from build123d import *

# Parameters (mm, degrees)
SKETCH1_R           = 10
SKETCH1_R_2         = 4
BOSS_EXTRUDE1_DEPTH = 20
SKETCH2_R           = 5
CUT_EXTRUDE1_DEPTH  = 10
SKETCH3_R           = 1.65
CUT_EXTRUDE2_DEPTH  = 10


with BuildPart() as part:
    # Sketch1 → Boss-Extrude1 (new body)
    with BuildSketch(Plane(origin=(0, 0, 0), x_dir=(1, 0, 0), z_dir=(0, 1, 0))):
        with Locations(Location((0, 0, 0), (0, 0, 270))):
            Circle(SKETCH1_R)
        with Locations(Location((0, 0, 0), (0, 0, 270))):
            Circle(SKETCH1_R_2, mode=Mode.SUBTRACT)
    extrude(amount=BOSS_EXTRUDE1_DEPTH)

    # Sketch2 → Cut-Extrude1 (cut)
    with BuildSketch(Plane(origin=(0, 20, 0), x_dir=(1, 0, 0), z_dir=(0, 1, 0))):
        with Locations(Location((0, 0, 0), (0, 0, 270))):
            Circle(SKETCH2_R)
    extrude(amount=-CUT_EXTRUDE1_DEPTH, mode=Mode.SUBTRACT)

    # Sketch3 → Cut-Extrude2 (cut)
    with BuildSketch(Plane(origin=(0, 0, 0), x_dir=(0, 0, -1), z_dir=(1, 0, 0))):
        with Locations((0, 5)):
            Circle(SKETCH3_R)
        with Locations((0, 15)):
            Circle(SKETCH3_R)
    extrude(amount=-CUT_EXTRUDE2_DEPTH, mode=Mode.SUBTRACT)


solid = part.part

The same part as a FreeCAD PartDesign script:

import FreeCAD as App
import Part
import Sketcher

doc = App.newDocument("Part")
body = doc.addObject("PartDesign::Body", "Body")

sketch1 = doc.addObject("Sketcher::SketchObject", "Sketch")
body.addObject(sketch1)
sketch1.AttachmentSupport = (doc.XZ_Plane, [""])
sketch1.MapMode = "FlatFace"
sketch1.addGeometry([
    Part.Circle(App.Vector(0, 0, 0), App.Vector(0, 0, 1), 10),
    Part.Circle(App.Vector(0, 0, 0), App.Vector(0, 0, 1), 4),
], False)
sketch1.addConstraint([
    Sketcher.Constraint("Coincident", 0, 3, -1, 1),
    Sketcher.Constraint("Coincident", 1, 3, -1, 1),
    Sketcher.Constraint("Diameter", 0, 20.0),
    Sketcher.Constraint("Diameter", 1, 8.0),
])
pad1 = doc.addObject("PartDesign::Pad", "Pad")
body.addObject(pad1)
pad1.Profile = sketch1
pad1.Length = 20
pad1.Reversed = True

sketch2 = doc.addObject("Sketcher::SketchObject", "Sketch001")
body.addObject(sketch2)
sketch2.AttachmentSupport = (doc.XZ_Plane, [""])
sketch2.MapMode = "FlatFace"
sketch2.AttachmentOffset = App.Placement(App.Vector(0, 0, -20), App.Rotation())
sketch2.addGeometry(Part.Circle(App.Vector(0, 0, 0), App.Vector(0, 0, 1), 5), False)
sketch2.addConstraint([
    Sketcher.Constraint("Coincident", 0, 3, -1, 1),
    Sketcher.Constraint("Diameter", 0, 10.0),
])
pocket1 = doc.addObject("PartDesign::Pocket", "Pocket")
body.addObject(pocket1)
pocket1.Profile = sketch2
pocket1.Length = 10
pocket1.Reversed = True

sketch3 = doc.addObject("Sketcher::SketchObject", "Sketch002")
body.addObject(sketch3)
sketch3.AttachmentSupport = (doc.YZ_Plane, [""])
sketch3.MapMode = "FlatFace"
sketch3.addGeometry([
    Part.Circle(App.Vector(5, 0, 0), App.Vector(0, 0, 1), 1.6),
    Part.Circle(App.Vector(15, 0, 0), App.Vector(0, 0, 1), 1.6),
], False)
sketch3.addConstraint([
    Sketcher.Constraint("Equal", 0, 1),
    Sketcher.Constraint("PointOnObject", 0, 3, -1),
    Sketcher.Constraint("PointOnObject", 1, 3, -1),
    Sketcher.Constraint("Diameter", 0, 3.3),
    Sketcher.Constraint("DistanceX", -1, 1, 0, 3, 5.0),
    Sketcher.Constraint("DistanceX", -1, 1, 1, 3, 15.0),
])
pocket2 = doc.addObject("PartDesign::Pocket", "Pocket001")
body.addObject(pocket2)
pocket2.Profile = sketch3
pocket2.Length = 10

doc.recompute()
